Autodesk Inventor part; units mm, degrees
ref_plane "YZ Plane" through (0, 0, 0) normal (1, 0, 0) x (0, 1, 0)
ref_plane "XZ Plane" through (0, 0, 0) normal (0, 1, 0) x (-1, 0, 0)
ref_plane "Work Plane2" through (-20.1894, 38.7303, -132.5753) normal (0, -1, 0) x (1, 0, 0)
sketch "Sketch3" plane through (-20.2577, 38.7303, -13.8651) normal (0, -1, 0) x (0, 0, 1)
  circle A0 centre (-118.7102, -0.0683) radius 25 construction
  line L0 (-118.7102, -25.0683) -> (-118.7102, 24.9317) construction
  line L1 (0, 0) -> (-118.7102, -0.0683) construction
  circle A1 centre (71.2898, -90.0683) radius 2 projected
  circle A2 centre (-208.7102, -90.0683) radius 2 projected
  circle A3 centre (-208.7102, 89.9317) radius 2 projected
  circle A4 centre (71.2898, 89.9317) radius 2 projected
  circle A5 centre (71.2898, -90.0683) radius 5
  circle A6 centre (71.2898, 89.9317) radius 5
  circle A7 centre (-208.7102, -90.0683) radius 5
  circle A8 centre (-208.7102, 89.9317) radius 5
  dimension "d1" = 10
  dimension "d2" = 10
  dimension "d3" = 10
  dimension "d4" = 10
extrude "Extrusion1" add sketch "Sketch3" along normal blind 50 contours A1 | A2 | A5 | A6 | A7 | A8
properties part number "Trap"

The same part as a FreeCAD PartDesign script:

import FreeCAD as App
import Part
import Sketcher
Q = App.Units.Quantity

doc = App.newDocument("Part")
params = doc.addObject("Spreadsheet::Sheet", "Params")
for row, (alias, value) in enumerate([
    ("sketch1_diameter", "10 mm"),
    ("sketch1_diameter2", "4 mm"),
    ("pad1_length", "50 mm"),
], start=1):
    params.set(f"A{row}", alias)
    params.set(f"B{row}", "=" + value)
    params.setAlias(f"B{row}", alias)

body = doc.addObject("PartDesign::Body", "Body")
body.AllowCompound = True

# Sketch on XZ plane
sketch1 = body.newObject("Sketcher::SketchObject", "Sketch")
sketch1.AttachmentSupport = (doc.getObject("XZ_Plane"), [""])
sketch1.MapMode = "FlatFace"
sketch1.AttachmentOffset = App.Placement(App.Vector(0, 0, -38.7303), App.Rotation())
sketch1.addGeometry([
    Part.Circle(App.Vector(69.8106, 57.4247, 0), App.Vector(0, 0, 1), 5),  # 0
    Part.Circle(App.Vector(69.8106, -222.5753, 0), App.Vector(0, 0, 1), 5),  # 1
    Part.Circle(App.Vector(-110.1894, 57.4247, 0), App.Vector(0, 0, 1), 5),  # 2
    Part.Circle(App.Vector(-110.1894, 57.4247, 0), App.Vector(0, 0, 1), 2),  # 3
    Part.Circle(App.Vector(-110.1894, -222.5753, 0), App.Vector(0, 0, 1), 5),  # 4
    Part.Circle(App.Vector(-110.1894, -222.5753, 0), App.Vector(0, 0, 1), 2),  # 5
], False)
sketch1.addConstraint([
    Sketcher.Constraint("Coincident", 3, 3, 2, 3),
    Sketcher.Constraint("Coincident", 5, 3, 4, 3),
    Sketcher.Constraint("Equal", 0, 1),
    Sketcher.Constraint("Equal", 1, 2),
    Sketcher.Constraint("Equal", 2, 4),
    Sketcher.Constraint("Equal", 3, 5),
    Sketcher.Constraint("Horizontal", 0, 3, 2, 3),
    Sketcher.Constraint("Horizontal", 1, 3, 4, 3),
    Sketcher.Constraint("Vertical", 0, 3, 1, 3),
    Sketcher.Constraint("Vertical", 3, 3, 4, 3),
    Sketcher.Constraint("Diameter", 0, Q("10 mm")),
    Sketcher.Constraint("Diameter", 3, Q("4 mm")),
    Sketcher.Constraint("DistanceY", 1, 3, 0, 3, Q("280 mm")),
    Sketcher.Constraint("DistanceX", 2, 3, 0, 3, Q("180 mm")),
    Sketcher.Constraint("DistanceX", -1, 1, 0, 3, Q("69.8106 mm")),
    Sketcher.Constraint("DistanceY", -1, 1, 0, 3, Q("57.4247 mm")),
])
sketch1.setExpression("Constraints[10]", "Params.sketch1_diameter")
sketch1.setExpression("Constraints[11]", "Params.sketch1_diameter2")
pad1 = body.newObject("PartDesign::Pad", "Pad")
pad1.Profile = sketch1
pad1.setExpression("Length", "Params.pad1_length")

doc.recompute()
